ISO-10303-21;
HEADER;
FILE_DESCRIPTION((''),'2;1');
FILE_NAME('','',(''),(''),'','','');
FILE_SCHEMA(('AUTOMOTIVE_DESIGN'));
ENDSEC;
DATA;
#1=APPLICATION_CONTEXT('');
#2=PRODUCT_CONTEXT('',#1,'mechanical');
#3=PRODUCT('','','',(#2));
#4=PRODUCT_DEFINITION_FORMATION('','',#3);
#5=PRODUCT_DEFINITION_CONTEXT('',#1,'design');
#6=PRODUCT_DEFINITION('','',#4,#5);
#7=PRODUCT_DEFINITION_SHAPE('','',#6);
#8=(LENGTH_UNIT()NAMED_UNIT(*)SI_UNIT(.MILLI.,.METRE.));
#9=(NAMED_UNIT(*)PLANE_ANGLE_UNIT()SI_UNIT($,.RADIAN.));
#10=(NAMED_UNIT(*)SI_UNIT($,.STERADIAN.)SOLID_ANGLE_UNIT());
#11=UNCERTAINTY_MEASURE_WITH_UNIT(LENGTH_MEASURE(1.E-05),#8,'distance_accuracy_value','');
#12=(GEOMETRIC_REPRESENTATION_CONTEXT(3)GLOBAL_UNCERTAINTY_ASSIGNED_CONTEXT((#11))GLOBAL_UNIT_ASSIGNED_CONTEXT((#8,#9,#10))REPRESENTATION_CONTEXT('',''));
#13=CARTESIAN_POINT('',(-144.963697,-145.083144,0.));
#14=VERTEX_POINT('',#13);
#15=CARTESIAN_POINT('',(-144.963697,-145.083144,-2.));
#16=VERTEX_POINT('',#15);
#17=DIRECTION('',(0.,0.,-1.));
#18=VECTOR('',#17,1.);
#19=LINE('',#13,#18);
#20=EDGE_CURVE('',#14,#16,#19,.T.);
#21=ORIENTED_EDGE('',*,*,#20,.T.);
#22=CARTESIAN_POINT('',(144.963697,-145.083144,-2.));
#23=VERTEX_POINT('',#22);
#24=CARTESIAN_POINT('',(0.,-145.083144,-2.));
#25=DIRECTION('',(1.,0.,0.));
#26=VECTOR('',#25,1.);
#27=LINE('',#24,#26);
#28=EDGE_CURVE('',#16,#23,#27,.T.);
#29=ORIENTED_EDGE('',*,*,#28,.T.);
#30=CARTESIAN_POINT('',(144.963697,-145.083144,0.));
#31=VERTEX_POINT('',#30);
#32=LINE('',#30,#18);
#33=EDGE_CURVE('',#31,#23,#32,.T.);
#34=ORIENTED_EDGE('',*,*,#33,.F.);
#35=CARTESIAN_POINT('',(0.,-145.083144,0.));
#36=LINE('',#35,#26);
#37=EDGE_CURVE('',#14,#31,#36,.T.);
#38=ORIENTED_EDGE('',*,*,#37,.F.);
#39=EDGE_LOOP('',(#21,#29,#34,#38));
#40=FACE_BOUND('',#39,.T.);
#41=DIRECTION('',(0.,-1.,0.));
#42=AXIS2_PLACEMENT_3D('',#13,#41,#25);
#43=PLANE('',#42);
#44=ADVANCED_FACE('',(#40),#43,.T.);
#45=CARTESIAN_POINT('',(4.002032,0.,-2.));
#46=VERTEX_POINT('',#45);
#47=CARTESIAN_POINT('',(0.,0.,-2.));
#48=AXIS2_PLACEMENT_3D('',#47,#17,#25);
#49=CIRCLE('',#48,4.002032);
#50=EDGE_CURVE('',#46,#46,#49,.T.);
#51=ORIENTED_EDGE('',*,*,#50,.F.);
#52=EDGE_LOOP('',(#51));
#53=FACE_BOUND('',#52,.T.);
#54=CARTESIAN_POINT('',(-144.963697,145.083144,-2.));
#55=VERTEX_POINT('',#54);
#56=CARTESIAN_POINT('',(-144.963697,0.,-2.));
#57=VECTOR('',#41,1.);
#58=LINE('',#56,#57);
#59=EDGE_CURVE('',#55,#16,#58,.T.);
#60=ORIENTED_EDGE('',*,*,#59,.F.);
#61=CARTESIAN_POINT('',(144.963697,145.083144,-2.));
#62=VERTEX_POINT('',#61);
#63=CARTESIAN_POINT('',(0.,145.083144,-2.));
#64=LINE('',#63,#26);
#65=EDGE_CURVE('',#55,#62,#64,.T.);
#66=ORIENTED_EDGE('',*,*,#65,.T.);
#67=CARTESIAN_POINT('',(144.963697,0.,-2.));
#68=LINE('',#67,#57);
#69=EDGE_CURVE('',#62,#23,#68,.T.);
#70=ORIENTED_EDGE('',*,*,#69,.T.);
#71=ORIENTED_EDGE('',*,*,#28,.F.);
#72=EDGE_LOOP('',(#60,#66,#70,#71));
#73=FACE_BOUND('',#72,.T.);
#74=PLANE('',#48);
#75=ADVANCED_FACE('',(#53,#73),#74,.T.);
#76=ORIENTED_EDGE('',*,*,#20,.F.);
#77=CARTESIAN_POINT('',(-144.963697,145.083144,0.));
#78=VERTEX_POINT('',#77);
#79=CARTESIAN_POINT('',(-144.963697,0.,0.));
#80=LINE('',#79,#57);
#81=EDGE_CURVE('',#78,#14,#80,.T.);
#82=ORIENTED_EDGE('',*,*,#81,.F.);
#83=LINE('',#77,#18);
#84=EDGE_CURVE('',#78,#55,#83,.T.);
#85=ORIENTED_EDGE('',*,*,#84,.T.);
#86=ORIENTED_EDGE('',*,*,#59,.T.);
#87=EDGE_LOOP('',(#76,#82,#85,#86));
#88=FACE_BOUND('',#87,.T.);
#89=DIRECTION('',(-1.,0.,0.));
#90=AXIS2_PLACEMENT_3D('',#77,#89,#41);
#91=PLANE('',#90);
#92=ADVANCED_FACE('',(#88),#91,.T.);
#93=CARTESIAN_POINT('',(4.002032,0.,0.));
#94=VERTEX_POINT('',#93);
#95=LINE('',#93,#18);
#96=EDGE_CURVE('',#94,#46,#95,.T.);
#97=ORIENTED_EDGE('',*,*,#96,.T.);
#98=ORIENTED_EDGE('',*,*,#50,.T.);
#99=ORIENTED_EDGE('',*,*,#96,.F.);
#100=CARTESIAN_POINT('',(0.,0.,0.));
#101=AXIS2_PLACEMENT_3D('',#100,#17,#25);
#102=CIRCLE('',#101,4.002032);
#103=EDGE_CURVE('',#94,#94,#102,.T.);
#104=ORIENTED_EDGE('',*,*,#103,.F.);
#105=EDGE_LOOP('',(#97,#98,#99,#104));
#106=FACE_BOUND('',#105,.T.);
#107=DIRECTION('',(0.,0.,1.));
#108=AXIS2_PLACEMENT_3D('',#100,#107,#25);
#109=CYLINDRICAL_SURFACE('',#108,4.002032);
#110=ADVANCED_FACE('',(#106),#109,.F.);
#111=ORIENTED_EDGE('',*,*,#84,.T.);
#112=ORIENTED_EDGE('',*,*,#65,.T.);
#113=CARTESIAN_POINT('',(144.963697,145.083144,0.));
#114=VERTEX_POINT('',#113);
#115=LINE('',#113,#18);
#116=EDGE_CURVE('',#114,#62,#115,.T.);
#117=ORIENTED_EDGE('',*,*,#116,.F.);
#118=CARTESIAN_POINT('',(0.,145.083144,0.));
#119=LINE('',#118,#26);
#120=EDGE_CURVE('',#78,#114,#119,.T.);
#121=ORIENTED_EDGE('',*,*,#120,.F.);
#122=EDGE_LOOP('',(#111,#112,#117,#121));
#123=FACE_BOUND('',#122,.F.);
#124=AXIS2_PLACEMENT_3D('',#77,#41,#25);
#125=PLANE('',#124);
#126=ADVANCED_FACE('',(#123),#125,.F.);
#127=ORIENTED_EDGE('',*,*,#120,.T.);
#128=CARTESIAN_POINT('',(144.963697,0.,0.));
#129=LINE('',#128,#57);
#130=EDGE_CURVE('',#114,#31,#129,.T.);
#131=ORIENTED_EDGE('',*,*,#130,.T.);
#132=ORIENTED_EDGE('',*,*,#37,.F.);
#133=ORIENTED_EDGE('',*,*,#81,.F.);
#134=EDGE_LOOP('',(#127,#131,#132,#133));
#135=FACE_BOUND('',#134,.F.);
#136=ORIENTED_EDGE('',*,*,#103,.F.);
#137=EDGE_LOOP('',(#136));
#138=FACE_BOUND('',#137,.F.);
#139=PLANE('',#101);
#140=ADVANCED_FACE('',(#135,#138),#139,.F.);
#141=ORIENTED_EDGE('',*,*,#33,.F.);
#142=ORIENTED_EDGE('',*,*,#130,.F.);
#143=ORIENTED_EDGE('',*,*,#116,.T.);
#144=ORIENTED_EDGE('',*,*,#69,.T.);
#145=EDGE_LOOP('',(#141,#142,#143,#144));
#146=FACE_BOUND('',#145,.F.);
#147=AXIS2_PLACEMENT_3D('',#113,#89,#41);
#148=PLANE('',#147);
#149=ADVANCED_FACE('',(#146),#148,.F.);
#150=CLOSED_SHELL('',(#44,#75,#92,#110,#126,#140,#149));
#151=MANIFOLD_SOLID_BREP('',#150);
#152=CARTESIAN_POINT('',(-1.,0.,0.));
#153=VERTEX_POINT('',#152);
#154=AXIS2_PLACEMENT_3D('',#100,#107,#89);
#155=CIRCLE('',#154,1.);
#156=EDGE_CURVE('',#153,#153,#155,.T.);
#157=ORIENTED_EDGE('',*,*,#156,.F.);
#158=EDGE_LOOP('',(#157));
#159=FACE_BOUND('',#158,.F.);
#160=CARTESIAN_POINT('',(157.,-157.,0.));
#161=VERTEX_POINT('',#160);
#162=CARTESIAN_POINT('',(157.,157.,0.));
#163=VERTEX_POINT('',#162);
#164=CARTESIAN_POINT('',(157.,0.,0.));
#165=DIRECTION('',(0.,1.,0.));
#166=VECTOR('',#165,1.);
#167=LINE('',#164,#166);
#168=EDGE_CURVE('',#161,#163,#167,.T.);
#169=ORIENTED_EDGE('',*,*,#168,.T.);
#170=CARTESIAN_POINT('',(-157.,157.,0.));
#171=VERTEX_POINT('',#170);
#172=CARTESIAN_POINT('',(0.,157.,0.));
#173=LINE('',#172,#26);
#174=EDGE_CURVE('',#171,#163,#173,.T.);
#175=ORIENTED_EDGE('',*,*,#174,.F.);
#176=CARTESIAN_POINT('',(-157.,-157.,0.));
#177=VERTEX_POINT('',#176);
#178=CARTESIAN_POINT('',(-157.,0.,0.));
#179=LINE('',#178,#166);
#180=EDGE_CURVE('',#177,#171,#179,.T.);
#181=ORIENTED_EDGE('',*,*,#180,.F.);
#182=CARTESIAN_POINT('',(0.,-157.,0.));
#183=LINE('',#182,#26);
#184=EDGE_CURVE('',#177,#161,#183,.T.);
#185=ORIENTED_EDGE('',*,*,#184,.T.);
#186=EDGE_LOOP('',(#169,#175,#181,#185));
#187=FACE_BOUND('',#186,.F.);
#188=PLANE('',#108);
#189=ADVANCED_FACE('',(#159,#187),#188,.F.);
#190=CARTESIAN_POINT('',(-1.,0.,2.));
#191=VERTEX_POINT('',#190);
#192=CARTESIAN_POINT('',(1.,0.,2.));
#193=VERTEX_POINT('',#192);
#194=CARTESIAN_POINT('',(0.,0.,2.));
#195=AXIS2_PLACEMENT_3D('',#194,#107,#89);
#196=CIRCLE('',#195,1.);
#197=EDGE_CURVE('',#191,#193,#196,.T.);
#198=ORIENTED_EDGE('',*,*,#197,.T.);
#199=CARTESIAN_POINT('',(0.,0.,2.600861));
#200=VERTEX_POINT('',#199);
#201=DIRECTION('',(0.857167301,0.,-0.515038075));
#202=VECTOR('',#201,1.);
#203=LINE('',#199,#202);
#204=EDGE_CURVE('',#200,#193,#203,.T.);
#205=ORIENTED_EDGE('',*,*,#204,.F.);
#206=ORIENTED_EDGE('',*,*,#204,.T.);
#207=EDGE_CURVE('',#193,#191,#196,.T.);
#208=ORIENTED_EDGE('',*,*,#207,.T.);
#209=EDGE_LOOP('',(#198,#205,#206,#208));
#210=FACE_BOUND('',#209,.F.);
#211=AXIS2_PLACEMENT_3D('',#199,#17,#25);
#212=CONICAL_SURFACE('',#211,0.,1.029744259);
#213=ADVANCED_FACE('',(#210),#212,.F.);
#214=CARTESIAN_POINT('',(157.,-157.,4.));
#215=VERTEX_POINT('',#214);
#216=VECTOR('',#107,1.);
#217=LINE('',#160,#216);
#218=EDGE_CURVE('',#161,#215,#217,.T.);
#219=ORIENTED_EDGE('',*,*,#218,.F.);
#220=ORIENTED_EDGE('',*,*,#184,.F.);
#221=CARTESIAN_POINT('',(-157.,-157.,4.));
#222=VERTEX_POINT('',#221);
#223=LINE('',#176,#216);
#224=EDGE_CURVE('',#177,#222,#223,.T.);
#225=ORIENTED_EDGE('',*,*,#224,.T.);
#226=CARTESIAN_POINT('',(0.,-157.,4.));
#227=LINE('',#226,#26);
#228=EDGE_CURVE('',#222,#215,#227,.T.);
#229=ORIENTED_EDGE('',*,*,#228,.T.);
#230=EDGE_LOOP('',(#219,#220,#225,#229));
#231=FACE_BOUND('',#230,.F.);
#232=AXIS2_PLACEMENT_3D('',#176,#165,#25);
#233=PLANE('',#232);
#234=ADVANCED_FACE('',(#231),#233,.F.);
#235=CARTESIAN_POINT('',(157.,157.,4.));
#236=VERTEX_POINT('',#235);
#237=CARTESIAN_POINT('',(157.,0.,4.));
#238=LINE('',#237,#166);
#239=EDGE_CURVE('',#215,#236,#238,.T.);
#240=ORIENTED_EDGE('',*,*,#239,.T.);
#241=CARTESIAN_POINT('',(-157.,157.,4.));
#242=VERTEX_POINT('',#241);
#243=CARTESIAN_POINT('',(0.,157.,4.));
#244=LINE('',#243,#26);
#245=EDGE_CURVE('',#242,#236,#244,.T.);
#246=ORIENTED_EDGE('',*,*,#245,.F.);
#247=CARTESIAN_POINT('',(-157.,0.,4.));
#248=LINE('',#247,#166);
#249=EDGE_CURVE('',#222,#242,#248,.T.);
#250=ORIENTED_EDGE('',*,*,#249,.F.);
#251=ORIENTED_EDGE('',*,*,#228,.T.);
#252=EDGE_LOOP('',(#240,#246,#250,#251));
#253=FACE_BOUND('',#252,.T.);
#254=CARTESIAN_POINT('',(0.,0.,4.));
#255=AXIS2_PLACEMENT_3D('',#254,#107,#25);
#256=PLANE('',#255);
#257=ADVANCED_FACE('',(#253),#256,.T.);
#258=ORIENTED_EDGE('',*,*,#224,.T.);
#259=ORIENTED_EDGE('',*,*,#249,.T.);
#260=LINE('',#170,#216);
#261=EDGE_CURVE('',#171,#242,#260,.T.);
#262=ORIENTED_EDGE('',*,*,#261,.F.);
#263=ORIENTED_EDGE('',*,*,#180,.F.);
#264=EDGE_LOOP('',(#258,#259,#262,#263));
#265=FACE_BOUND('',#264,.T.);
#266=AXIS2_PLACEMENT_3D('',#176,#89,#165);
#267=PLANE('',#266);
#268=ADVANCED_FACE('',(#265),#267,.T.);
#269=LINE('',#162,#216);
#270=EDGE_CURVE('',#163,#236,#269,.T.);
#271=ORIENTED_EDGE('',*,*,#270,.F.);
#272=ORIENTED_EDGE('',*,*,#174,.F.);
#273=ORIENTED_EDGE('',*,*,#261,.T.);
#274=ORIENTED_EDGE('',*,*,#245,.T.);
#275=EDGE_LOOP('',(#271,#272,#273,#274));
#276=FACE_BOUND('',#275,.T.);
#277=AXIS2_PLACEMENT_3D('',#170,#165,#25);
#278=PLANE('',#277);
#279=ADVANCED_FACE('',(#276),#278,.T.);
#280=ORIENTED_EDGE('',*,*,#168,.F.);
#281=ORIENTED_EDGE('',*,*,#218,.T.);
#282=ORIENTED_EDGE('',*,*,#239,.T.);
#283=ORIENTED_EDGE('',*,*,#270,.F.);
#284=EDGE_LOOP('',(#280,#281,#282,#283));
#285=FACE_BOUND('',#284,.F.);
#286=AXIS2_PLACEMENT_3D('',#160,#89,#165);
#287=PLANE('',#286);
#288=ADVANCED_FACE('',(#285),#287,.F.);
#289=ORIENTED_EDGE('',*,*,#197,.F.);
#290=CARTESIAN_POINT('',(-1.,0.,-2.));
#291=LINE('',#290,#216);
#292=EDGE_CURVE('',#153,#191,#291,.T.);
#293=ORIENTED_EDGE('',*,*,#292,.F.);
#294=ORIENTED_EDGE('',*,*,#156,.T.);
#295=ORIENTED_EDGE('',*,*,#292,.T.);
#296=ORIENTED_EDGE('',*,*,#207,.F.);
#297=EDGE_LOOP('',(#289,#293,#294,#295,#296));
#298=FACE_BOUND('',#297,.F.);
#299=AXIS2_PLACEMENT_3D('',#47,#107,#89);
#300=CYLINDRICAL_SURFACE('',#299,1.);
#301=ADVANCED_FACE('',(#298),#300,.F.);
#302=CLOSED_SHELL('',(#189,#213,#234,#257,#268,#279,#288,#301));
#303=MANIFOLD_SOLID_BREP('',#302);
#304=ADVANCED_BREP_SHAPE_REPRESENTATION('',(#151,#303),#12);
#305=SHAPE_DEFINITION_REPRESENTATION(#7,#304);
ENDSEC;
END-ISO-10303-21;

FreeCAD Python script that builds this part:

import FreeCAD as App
import Part
import Sketcher
from FreeCAD import Vector
Q = App.Units.Quantity


def add_polygon(sketch, points):
    """Adds a closed chain of lines whose ends are joined by coincident constraints."""
    first, n = sketch.GeometryCount, len(points)
    for a, b in zip(points, points[1:] + points[:1]):
        sketch.addGeometry(Part.LineSegment(App.Vector(*a, 0), App.Vector(*b, 0)), False)
    for i in range(n):
        sketch.addConstraint(Sketcher.Constraint("Coincident", first + i, 2, first + (i + 1) % n, 1))

doc = App.newDocument("Part")
body = doc.addObject("PartDesign::Body", "Body")

# Sketch on XY plane
sketch1 = body.newObject("Sketcher::SketchObject", "Sketch")
sketch1.AttachmentSupport = (doc.getObject("XY_Plane"), [""])
sketch1.MapMode = "FlatFace"
add_polygon(sketch1, [(-157, 157), (-157, -157), (157, -157), (157, 157)])  # lines 0-3
sketch1.addConstraint(Sketcher.Constraint("Vertical", 0))
sketch1.addConstraint(Sketcher.Constraint("Horizontal", 1))
sketch1.addConstraint(Sketcher.Constraint("Vertical", 2))
sketch1.addConstraint(Sketcher.Constraint("Horizontal", 3))
sketch1.addConstraint(Sketcher.Constraint("Symmetric", 0, 2, 2, 2, -1, 1))
sketch1.addConstraint(Sketcher.Constraint("Equal", 3, 0))
sketch1.addConstraint(Sketcher.Constraint("DistanceX", 1, 1, 1, 2, Q("314 mm")))
pad1 = body.newObject("PartDesign::Pad", "Pad")
pad1.Profile = sketch1
pad1.Length = 4

# Sketch on XY plane
sketch2 = body.newObject("Sketcher::SketchObject", "Sketch001")
sketch2.AttachmentSupport = (doc.getObject("XY_Plane"), [""])
sketch2.MapMode = "FlatFace"
sketch2.addGeometry(Part.Circle(Vector(0, 0, 0), Vector(0, 0, 1), 1), False)
sketch2.addConstraint(Sketcher.Constraint("Coincident", 0, 3, -1, 1))
sketch2.addConstraint(Sketcher.Constraint("Diameter", 0, Q("2 mm")))
doc.recompute()
hole = body.newObject("PartDesign::Hole", "Hole")
hole.Profile = sketch2
hole.ThreadType = "None"
hole.Diameter = 2
hole.DepthType = "Dimension"
hole.Depth = 2
hole.DrillPoint = "Angled"
hole.DrillPointAngle = 118
hole.Reversed = True
body2 = doc.addObject("PartDesign::Body", "Body001")

# Sketch on XY plane
sketch3 = body2.newObject("Sketcher::SketchObject", "Sketch002")
sketch3.AttachmentSupport = (doc.getObject("XY_Plane001"), [""])
sketch3.MapMode = "FlatFace"
add_polygon(sketch3, [(-144.963697, -145.083144), (-144.963697, 145.083144), (144.963697, 145.083144), (144.963697, -145.083144)])  # lines 0-3
sketch3.addGeometry(Part.Circle(Vector(0, 0, 0), Vector(0, 0, 1), 4.002032), False)  # 4
sketch3.addConstraint(Sketcher.Constraint("Vertical", 0))
sketch3.addConstraint(Sketcher.Constraint("Horizontal", 1))
sketch3.addConstraint(Sketcher.Constraint("Vertical", 2))
sketch3.addConstraint(Sketcher.Constraint("Horizontal", 3))
sketch3.addConstraint(Sketcher.Constraint("Coincident", 4, 3, -1, 1))
sketch3.addConstraint(Sketcher.Constraint("Symmetric", 0, 2, 2, 2, -1, 1))
sketch3.addConstraint(Sketcher.Constraint("Diameter", 4, Q("8.004065 mm")))
sketch3.addConstraint(Sketcher.Constraint("DistanceY", 0, 1, 0, 2, Q("290.166289 mm")))
sketch3.addConstraint(Sketcher.Constraint("DistanceX", 1, 1, 1, 2, Q("289.927393 mm")))
pad2 = body2.newObject("PartDesign::Pad", "Pad001")
pad2.Profile = sketch3
pad2.Length = 2
pad2.Reversed = True

doc.recompute()
